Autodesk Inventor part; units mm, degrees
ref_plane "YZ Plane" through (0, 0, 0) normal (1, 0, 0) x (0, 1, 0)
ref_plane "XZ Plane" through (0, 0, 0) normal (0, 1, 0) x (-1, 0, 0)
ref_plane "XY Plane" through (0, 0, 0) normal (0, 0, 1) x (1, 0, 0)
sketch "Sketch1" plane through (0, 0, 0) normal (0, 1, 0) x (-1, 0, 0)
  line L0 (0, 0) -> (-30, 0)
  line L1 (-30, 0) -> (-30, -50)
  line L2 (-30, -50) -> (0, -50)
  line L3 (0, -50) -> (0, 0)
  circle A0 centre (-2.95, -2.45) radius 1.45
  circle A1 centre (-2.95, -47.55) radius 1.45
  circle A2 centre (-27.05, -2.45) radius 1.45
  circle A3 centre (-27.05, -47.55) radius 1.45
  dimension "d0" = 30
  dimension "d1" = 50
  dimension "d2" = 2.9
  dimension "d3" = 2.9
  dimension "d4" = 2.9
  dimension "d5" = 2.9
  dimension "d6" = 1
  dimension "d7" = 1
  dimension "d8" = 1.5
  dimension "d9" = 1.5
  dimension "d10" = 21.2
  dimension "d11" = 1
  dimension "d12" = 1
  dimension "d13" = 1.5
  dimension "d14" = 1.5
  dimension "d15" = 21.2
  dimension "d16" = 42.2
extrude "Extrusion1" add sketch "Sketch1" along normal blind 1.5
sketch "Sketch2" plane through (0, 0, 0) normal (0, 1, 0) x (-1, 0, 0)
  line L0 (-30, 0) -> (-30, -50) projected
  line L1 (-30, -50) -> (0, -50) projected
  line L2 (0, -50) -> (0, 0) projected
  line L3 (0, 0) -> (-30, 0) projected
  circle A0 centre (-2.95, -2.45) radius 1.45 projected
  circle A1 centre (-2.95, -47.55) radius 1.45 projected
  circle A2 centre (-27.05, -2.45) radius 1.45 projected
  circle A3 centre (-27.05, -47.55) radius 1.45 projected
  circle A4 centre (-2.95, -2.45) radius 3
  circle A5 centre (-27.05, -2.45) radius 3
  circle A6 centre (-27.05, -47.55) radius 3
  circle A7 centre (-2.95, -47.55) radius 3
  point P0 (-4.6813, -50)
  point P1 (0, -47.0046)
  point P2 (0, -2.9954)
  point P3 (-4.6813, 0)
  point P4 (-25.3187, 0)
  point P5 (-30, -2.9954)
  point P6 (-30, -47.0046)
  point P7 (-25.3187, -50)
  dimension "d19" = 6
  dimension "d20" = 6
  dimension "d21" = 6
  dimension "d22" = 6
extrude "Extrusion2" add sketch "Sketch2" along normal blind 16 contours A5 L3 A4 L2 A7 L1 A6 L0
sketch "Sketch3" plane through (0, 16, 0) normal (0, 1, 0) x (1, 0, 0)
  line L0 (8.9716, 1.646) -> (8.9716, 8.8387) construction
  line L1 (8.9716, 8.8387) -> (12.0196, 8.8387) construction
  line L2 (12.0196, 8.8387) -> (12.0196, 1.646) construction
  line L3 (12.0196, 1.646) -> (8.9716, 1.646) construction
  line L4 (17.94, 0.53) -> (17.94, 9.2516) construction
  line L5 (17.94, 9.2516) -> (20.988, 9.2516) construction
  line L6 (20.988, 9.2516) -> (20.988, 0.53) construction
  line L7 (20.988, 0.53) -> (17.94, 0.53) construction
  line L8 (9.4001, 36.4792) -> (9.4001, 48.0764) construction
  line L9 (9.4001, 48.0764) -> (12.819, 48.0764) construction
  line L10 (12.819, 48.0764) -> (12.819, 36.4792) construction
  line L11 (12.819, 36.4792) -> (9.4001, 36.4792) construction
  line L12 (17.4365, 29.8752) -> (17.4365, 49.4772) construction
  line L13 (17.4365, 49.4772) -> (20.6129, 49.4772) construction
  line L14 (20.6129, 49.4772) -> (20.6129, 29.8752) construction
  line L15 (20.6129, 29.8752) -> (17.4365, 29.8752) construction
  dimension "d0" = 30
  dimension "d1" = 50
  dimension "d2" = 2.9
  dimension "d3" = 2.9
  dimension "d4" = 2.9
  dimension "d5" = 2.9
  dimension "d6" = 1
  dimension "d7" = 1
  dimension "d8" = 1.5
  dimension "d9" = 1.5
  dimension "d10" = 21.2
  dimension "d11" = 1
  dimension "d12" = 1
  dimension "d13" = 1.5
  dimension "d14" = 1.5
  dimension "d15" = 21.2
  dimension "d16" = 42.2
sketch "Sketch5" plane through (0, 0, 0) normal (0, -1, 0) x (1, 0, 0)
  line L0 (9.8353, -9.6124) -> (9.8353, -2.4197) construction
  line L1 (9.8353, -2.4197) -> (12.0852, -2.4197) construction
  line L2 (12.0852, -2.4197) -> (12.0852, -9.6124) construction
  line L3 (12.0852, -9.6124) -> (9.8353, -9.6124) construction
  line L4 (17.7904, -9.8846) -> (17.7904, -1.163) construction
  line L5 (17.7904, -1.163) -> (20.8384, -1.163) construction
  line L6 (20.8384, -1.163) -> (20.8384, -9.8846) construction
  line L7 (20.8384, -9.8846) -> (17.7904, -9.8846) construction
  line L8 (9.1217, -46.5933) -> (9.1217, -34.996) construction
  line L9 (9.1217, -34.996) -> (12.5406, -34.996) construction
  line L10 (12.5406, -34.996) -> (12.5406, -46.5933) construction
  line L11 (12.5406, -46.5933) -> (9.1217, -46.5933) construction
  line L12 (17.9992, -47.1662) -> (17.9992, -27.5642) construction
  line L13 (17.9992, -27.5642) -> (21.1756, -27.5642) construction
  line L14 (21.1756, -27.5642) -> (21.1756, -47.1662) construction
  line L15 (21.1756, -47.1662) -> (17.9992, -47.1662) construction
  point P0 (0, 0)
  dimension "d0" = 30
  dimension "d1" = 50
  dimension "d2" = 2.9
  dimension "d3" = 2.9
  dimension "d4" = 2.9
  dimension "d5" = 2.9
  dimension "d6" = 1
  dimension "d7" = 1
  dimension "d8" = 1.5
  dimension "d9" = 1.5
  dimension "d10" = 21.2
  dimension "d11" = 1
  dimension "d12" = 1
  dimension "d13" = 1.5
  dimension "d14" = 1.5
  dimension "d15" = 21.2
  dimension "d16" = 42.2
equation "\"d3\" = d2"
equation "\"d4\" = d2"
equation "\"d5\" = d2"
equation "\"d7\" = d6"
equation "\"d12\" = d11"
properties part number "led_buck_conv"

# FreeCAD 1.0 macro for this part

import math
import FreeCAD as App
import Part
import Sketcher
from FreeCAD import Vector

doc = App.newDocument("Part")
params = doc.addObject("Spreadsheet::Sheet", "Params")
for row, (alias, value) in enumerate([
    ("sketch1_diameter", "2.9 mm"),
    ("sketch1_width", "30 mm"),
    ("sketch1_height", "50 mm"),
    ("pad1_length", "1.5 mm"),
    ("sketch2_radius", "3 mm"),
    ("pad2_length", "16 mm"),
], start=1):
    params.set(f"A{row}", alias)
    params.set(f"B{row}", "=" + value)
    params.setAlias(f"B{row}", alias)

body = doc.addObject("PartDesign::Body", "Body")

# Sketch on XZ plane
sketch1 = doc.addObject("Sketcher::SketchObject", "Sketch")
body.addObject(sketch1)
sketch1.AttachmentSupport = (doc.XZ_Plane, [""])
sketch1.MapMode = "FlatFace"
sketch1.addGeometry(Part.LineSegment(Vector(0, -50, 0), Vector(0, 0, 0)), False)
sketch1.addGeometry(Part.LineSegment(Vector(0, 0, 0), Vector(30, 0, 0)), False)
sketch1.addGeometry(Part.LineSegment(Vector(30, 0, 0), Vector(30, -50, 0)), False)
sketch1.addGeometry(Part.LineSegment(Vector(30, -50, 0), Vector(0, -50, 0)), False)
sketch1.addGeometry(Part.Circle(Vector(27.1, -47.5, 0), Vector(0, 0, 1), 1.4), False)
sketch1.addGeometry(Part.Circle(Vector(3, -47.5, 0), Vector(0, 0, 1), 1.4), False)
sketch1.addGeometry(Part.Circle(Vector(27.1, -2.5, 0), Vector(0, 0, 1), 1.4), False)
sketch1.addGeometry(Part.Circle(Vector(3, -2.5, 0), Vector(0, 0, 1), 1.4), False)
sketch1.addConstraint(Sketcher.Constraint("Coincident", 0, 2, 1, 1))
sketch1.addConstraint(Sketcher.Constraint("Coincident", 1, 2, 2, 1))
sketch1.addConstraint(Sketcher.Constraint("Coincident", 2, 2, 3, 1))
sketch1.addConstraint(Sketcher.Constraint("Coincident", 3, 2, 0, 1))
sketch1.addConstraint(Sketcher.Constraint("Vertical", 0))
sketch1.addConstraint(Sketcher.Constraint("Horizontal", 1))
sketch1.addConstraint(Sketcher.Constraint("Vertical", 2))
sketch1.addConstraint(Sketcher.Constraint("Horizontal", 3))
sketch1.addConstraint(Sketcher.Constraint("Coincident", 0, 2, -1, 1))
sketch1.addConstraint(Sketcher.Constraint("Equal", 4, 5))
sketch1.addConstraint(Sketcher.Constraint("Equal", 5, 6))
sketch1.addConstraint(Sketcher.Constraint("Equal", 6, 7))
sketch1.addConstraint(Sketcher.Constraint("Horizontal", 4, 3, 5, 3))
sketch1.addConstraint(Sketcher.Constraint("Horizontal", 6, 3, 7, 3))
sketch1.addConstraint(Sketcher.Constraint("Vertical", 4, 3, 6, 3))
sketch1.addConstraint(Sketcher.Constraint("Vertical", 5, 3, 7, 3))
sketch1.addConstraint(Sketcher.Constraint("Diameter", 4, 2.9))
sketch1.addConstraint(Sketcher.Constraint("DistanceX", 1, 1, 1, 2, 30.0))
sketch1.addConstraint(Sketcher.Constraint("DistanceY", 0, 1, 0, 2, 50.0))
sketch1.addConstraint(Sketcher.Constraint("DistanceX", 5, 3, 4, 3, 24.1))
sketch1.addConstraint(Sketcher.Constraint("DistanceY", 4, 3, 6, 3, 45.1))
sketch1.addConstraint(Sketcher.Constraint("DistanceX", -1, 1, 4, 3, 27.05))
sketch1.addConstraint(Sketcher.Constraint("DistanceY", 4, 3, -1, 1, 47.55))
sketch1.setExpression("Constraints[16]", "Params.sketch1_diameter")
sketch1.setExpression("Constraints[17]", "Params.sketch1_width")
sketch1.setExpression("Constraints[18]", "Params.sketch1_height")
pad1 = doc.addObject("PartDesign::Pad", "Pad")
body.addObject(pad1)
pad1.Profile = sketch1
pad1.setExpression("Length", "Params.pad1_length")
pad1.Reversed = True

# Sketch on XZ plane
sketch2 = doc.addObject("Sketcher::SketchObject", "Sketch001")
body.addObject(sketch2)
sketch2.AttachmentSupport = (doc.XZ_Plane, [""])
sketch2.MapMode = "FlatFace"
sketch2.addGeometry(Part.ArcOfCircle(Part.Circle(Vector(27.1, -2.5, 0), Vector(0, 0, 1), 3), math.radians(125), math.radians(350)), False)
sketch2.addGeometry(Part.LineSegment(Vector(30, -3, 0), Vector(30, -47, 0)), False)
sketch2.addGeometry(Part.ArcOfCircle(Part.Circle(Vector(27.1, -47.5, 0), Vector(0, 0, 1), 3), math.radians(10), math.radians(235)), False)
sketch2.addGeometry(Part.LineSegment(Vector(25.3, -50, 0), Vector(4.7, -50, 0)), False)
sketch2.addGeometry(Part.ArcOfCircle(Part.Circle(Vector(3, -47.5, 0), Vector(0, 0, 1), 3), math.radians(-55), math.radians(170)), False)
sketch2.addGeometry(Part.LineSegment(Vector(0, -47, 0), Vector(0, -3, 0)), False)
sketch2.addGeometry(Part.ArcOfCircle(Part.Circle(Vector(3, -2.5, 0), Vector(0, 0, 1), 3), math.radians(-170), math.radians(55)), False)
sketch2.addGeometry(Part.LineSegment(Vector(4.7, 0, 0), Vector(25.3, 0, 0)), False)
sketch2.addConstraint(Sketcher.Constraint("Coincident", 0, 2, 1, 1))
sketch2.addConstraint(Sketcher.Constraint("Coincident", 1, 2, 2, 1))
sketch2.addConstraint(Sketcher.Constraint("Coincident", 2, 2, 3, 1))
sketch2.addConstraint(Sketcher.Constraint("Coincident", 3, 2, 4, 1))
sketch2.addConstraint(Sketcher.Constraint("Coincident", 4, 2, 5, 1))
sketch2.addConstraint(Sketcher.Constraint("Coincident", 5, 2, 6, 1))
sketch2.addConstraint(Sketcher.Constraint("Coincident", 6, 2, 7, 1))
sketch2.addConstraint(Sketcher.Constraint("Coincident", 7, 2, 0, 1))
sketch2.addConstraint(Sketcher.Constraint("Vertical", 1))
sketch2.addConstraint(Sketcher.Constraint("Horizontal", 3))
sketch2.addConstraint(Sketcher.Constraint("Vertical", 5))
sketch2.addConstraint(Sketcher.Constraint("Horizontal", 7))
sketch2.addConstraint(Sketcher.Constraint("Equal", 0, 2))
sketch2.addConstraint(Sketcher.Constraint("Equal", 2, 4))
sketch2.addConstraint(Sketcher.Constraint("Equal", 4, 6))
sketch2.addConstraint(Sketcher.Constraint("PointOnObject", 4, 2, -2))
sketch2.addConstraint(Sketcher.Constraint("PointOnObject", 6, 2, -1))
sketch2.addConstraint(Sketcher.Constraint("Horizontal", 2, 3, 4, 3))
sketch2.addConstraint(Sketcher.Constraint("Horizontal", 0, 3, 6, 3))
sketch2.addConstraint(Sketcher.Constraint("Horizontal", 1, 2, 4, 2))
sketch2.addConstraint(Sketcher.Constraint("Horizontal", 0, 2, 5, 2))
sketch2.addConstraint(Sketcher.Constraint("Vertical", 0, 3, 2, 3))
sketch2.addConstraint(Sketcher.Constraint("Vertical", 3, 2, 6, 2))
sketch2.addConstraint(Sketcher.Constraint("Radius", 0, 3.0))
sketch2.addConstraint(Sketcher.Constraint("DistanceX", -1, 1, 0, 2, 30.0))
sketch2.addConstraint(Sketcher.Constraint("DistanceY", 2, 2, -1, 1, 50.0))
sketch2.addConstraint(Sketcher.Constraint("DistanceY", 2, 3, 0, 3, 45.1))
sketch2.addConstraint(Sketcher.Constraint("DistanceX", 4, 3, 2, 3, 24.1))
sketch2.setExpression("Constraints[23]", "Params.sketch2_radius")
pad2 = doc.addObject("PartDesign::Pad", "Pad001")
body.addObject(pad2)
pad2.Profile = sketch2
pad2.setExpression("Length", "Params.pad2_length")
pad2.Reversed = True

doc.recompute()
